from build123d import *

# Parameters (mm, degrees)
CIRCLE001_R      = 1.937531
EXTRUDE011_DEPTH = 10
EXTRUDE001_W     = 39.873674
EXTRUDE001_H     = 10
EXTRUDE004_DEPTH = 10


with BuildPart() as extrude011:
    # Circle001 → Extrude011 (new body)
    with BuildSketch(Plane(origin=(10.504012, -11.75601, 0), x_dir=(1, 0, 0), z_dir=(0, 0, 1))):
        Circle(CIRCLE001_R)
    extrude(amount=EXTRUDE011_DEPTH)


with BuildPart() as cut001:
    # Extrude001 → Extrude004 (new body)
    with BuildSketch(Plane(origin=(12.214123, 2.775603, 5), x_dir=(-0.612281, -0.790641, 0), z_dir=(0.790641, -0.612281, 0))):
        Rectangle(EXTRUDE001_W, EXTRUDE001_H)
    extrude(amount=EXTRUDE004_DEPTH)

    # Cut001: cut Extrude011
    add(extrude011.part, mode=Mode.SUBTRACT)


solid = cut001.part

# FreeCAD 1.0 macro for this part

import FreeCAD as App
import Part
import Sketcher

V = App.Vector


def add_polygon(sketch, points):
    """Adds a closed chain of lines whose ends are joined by coincident constraints."""
    first, n = sketch.GeometryCount, len(points)
    for a, b in zip(points, points[1:] + points[:1]):
        sketch.addGeometry(Part.LineSegment(App.Vector(*a, 0), App.Vector(*b, 0)), False)
    for i in range(n):
        sketch.addConstraint(Sketcher.Constraint("Coincident", first + i, 2, first + (i + 1) % n, 1))

doc = App.newDocument("Part")
body = doc.addObject("PartDesign::Body", "Body")

sketch1 = body.newObject("Sketcher::SketchObject", "Sketch")
sketch1.AttachmentSupport = (doc.getObject("XY_Plane"), [""])
sketch1.MapMode = "FlatFace"
sketch1.addGeometry(Part.Circle(V(10.5, -11.8, 0), V(0, 0, 1), 1.9), False)
sketch1.addConstraint([
    Sketcher.Constraint("Diameter", 0, 3.875062),
    Sketcher.Constraint("DistanceY", 0, 3, -1, 1, 11.75601),
    Sketcher.Constraint("DistanceX", -1, 1, 0, 3, 10.504012),
])
pad1 = body.newObject("PartDesign::Pad", "Pad")
pad1.Profile = sketch1
pad1.Length = 10
body2 = doc.addObject("PartDesign::Body", "Body001")

sketch2 = body2.newObject("Sketcher::SketchObject", "Sketch001")
sketch2.Placement = App.Placement(V(12.214123, 2.775603, 5), App.Rotation(V(-0.612280628, -0.79064052, 0), V(0, 0, -0.999999999), V(0.79064052, -0.612280628, 0), "ZXY"))
add_polygon(sketch2, [(-20, 5), (-20, -5), (20, -5), (20, 5)])
sketch2.addConstraint([
    Sketcher.Constraint("Vertical", 0),
    Sketcher.Constraint("Horizontal", 1),
    Sketcher.Constraint("Vertical", 2),
    Sketcher.Constraint("Horizontal", 3),
    Sketcher.Constraint("Symmetric", 0, 2, 2, 2, -1, 1),
    Sketcher.Constraint("DistanceY", 0, 2, 0, 1, 10.0),
    Sketcher.Constraint("DistanceX", 1, 1, 1, 2, 39.873674),
])
pad2 = body2.newObject("PartDesign::Pad", "Pad001")
pad2.Profile = sketch2
pad2.Length = 10
doc.recompute()

boolean = body2.newObject("PartDesign::Boolean", "Boolean")
boolean.Type = "Cut"
boolean.addObjects([body])

doc.recompute()
